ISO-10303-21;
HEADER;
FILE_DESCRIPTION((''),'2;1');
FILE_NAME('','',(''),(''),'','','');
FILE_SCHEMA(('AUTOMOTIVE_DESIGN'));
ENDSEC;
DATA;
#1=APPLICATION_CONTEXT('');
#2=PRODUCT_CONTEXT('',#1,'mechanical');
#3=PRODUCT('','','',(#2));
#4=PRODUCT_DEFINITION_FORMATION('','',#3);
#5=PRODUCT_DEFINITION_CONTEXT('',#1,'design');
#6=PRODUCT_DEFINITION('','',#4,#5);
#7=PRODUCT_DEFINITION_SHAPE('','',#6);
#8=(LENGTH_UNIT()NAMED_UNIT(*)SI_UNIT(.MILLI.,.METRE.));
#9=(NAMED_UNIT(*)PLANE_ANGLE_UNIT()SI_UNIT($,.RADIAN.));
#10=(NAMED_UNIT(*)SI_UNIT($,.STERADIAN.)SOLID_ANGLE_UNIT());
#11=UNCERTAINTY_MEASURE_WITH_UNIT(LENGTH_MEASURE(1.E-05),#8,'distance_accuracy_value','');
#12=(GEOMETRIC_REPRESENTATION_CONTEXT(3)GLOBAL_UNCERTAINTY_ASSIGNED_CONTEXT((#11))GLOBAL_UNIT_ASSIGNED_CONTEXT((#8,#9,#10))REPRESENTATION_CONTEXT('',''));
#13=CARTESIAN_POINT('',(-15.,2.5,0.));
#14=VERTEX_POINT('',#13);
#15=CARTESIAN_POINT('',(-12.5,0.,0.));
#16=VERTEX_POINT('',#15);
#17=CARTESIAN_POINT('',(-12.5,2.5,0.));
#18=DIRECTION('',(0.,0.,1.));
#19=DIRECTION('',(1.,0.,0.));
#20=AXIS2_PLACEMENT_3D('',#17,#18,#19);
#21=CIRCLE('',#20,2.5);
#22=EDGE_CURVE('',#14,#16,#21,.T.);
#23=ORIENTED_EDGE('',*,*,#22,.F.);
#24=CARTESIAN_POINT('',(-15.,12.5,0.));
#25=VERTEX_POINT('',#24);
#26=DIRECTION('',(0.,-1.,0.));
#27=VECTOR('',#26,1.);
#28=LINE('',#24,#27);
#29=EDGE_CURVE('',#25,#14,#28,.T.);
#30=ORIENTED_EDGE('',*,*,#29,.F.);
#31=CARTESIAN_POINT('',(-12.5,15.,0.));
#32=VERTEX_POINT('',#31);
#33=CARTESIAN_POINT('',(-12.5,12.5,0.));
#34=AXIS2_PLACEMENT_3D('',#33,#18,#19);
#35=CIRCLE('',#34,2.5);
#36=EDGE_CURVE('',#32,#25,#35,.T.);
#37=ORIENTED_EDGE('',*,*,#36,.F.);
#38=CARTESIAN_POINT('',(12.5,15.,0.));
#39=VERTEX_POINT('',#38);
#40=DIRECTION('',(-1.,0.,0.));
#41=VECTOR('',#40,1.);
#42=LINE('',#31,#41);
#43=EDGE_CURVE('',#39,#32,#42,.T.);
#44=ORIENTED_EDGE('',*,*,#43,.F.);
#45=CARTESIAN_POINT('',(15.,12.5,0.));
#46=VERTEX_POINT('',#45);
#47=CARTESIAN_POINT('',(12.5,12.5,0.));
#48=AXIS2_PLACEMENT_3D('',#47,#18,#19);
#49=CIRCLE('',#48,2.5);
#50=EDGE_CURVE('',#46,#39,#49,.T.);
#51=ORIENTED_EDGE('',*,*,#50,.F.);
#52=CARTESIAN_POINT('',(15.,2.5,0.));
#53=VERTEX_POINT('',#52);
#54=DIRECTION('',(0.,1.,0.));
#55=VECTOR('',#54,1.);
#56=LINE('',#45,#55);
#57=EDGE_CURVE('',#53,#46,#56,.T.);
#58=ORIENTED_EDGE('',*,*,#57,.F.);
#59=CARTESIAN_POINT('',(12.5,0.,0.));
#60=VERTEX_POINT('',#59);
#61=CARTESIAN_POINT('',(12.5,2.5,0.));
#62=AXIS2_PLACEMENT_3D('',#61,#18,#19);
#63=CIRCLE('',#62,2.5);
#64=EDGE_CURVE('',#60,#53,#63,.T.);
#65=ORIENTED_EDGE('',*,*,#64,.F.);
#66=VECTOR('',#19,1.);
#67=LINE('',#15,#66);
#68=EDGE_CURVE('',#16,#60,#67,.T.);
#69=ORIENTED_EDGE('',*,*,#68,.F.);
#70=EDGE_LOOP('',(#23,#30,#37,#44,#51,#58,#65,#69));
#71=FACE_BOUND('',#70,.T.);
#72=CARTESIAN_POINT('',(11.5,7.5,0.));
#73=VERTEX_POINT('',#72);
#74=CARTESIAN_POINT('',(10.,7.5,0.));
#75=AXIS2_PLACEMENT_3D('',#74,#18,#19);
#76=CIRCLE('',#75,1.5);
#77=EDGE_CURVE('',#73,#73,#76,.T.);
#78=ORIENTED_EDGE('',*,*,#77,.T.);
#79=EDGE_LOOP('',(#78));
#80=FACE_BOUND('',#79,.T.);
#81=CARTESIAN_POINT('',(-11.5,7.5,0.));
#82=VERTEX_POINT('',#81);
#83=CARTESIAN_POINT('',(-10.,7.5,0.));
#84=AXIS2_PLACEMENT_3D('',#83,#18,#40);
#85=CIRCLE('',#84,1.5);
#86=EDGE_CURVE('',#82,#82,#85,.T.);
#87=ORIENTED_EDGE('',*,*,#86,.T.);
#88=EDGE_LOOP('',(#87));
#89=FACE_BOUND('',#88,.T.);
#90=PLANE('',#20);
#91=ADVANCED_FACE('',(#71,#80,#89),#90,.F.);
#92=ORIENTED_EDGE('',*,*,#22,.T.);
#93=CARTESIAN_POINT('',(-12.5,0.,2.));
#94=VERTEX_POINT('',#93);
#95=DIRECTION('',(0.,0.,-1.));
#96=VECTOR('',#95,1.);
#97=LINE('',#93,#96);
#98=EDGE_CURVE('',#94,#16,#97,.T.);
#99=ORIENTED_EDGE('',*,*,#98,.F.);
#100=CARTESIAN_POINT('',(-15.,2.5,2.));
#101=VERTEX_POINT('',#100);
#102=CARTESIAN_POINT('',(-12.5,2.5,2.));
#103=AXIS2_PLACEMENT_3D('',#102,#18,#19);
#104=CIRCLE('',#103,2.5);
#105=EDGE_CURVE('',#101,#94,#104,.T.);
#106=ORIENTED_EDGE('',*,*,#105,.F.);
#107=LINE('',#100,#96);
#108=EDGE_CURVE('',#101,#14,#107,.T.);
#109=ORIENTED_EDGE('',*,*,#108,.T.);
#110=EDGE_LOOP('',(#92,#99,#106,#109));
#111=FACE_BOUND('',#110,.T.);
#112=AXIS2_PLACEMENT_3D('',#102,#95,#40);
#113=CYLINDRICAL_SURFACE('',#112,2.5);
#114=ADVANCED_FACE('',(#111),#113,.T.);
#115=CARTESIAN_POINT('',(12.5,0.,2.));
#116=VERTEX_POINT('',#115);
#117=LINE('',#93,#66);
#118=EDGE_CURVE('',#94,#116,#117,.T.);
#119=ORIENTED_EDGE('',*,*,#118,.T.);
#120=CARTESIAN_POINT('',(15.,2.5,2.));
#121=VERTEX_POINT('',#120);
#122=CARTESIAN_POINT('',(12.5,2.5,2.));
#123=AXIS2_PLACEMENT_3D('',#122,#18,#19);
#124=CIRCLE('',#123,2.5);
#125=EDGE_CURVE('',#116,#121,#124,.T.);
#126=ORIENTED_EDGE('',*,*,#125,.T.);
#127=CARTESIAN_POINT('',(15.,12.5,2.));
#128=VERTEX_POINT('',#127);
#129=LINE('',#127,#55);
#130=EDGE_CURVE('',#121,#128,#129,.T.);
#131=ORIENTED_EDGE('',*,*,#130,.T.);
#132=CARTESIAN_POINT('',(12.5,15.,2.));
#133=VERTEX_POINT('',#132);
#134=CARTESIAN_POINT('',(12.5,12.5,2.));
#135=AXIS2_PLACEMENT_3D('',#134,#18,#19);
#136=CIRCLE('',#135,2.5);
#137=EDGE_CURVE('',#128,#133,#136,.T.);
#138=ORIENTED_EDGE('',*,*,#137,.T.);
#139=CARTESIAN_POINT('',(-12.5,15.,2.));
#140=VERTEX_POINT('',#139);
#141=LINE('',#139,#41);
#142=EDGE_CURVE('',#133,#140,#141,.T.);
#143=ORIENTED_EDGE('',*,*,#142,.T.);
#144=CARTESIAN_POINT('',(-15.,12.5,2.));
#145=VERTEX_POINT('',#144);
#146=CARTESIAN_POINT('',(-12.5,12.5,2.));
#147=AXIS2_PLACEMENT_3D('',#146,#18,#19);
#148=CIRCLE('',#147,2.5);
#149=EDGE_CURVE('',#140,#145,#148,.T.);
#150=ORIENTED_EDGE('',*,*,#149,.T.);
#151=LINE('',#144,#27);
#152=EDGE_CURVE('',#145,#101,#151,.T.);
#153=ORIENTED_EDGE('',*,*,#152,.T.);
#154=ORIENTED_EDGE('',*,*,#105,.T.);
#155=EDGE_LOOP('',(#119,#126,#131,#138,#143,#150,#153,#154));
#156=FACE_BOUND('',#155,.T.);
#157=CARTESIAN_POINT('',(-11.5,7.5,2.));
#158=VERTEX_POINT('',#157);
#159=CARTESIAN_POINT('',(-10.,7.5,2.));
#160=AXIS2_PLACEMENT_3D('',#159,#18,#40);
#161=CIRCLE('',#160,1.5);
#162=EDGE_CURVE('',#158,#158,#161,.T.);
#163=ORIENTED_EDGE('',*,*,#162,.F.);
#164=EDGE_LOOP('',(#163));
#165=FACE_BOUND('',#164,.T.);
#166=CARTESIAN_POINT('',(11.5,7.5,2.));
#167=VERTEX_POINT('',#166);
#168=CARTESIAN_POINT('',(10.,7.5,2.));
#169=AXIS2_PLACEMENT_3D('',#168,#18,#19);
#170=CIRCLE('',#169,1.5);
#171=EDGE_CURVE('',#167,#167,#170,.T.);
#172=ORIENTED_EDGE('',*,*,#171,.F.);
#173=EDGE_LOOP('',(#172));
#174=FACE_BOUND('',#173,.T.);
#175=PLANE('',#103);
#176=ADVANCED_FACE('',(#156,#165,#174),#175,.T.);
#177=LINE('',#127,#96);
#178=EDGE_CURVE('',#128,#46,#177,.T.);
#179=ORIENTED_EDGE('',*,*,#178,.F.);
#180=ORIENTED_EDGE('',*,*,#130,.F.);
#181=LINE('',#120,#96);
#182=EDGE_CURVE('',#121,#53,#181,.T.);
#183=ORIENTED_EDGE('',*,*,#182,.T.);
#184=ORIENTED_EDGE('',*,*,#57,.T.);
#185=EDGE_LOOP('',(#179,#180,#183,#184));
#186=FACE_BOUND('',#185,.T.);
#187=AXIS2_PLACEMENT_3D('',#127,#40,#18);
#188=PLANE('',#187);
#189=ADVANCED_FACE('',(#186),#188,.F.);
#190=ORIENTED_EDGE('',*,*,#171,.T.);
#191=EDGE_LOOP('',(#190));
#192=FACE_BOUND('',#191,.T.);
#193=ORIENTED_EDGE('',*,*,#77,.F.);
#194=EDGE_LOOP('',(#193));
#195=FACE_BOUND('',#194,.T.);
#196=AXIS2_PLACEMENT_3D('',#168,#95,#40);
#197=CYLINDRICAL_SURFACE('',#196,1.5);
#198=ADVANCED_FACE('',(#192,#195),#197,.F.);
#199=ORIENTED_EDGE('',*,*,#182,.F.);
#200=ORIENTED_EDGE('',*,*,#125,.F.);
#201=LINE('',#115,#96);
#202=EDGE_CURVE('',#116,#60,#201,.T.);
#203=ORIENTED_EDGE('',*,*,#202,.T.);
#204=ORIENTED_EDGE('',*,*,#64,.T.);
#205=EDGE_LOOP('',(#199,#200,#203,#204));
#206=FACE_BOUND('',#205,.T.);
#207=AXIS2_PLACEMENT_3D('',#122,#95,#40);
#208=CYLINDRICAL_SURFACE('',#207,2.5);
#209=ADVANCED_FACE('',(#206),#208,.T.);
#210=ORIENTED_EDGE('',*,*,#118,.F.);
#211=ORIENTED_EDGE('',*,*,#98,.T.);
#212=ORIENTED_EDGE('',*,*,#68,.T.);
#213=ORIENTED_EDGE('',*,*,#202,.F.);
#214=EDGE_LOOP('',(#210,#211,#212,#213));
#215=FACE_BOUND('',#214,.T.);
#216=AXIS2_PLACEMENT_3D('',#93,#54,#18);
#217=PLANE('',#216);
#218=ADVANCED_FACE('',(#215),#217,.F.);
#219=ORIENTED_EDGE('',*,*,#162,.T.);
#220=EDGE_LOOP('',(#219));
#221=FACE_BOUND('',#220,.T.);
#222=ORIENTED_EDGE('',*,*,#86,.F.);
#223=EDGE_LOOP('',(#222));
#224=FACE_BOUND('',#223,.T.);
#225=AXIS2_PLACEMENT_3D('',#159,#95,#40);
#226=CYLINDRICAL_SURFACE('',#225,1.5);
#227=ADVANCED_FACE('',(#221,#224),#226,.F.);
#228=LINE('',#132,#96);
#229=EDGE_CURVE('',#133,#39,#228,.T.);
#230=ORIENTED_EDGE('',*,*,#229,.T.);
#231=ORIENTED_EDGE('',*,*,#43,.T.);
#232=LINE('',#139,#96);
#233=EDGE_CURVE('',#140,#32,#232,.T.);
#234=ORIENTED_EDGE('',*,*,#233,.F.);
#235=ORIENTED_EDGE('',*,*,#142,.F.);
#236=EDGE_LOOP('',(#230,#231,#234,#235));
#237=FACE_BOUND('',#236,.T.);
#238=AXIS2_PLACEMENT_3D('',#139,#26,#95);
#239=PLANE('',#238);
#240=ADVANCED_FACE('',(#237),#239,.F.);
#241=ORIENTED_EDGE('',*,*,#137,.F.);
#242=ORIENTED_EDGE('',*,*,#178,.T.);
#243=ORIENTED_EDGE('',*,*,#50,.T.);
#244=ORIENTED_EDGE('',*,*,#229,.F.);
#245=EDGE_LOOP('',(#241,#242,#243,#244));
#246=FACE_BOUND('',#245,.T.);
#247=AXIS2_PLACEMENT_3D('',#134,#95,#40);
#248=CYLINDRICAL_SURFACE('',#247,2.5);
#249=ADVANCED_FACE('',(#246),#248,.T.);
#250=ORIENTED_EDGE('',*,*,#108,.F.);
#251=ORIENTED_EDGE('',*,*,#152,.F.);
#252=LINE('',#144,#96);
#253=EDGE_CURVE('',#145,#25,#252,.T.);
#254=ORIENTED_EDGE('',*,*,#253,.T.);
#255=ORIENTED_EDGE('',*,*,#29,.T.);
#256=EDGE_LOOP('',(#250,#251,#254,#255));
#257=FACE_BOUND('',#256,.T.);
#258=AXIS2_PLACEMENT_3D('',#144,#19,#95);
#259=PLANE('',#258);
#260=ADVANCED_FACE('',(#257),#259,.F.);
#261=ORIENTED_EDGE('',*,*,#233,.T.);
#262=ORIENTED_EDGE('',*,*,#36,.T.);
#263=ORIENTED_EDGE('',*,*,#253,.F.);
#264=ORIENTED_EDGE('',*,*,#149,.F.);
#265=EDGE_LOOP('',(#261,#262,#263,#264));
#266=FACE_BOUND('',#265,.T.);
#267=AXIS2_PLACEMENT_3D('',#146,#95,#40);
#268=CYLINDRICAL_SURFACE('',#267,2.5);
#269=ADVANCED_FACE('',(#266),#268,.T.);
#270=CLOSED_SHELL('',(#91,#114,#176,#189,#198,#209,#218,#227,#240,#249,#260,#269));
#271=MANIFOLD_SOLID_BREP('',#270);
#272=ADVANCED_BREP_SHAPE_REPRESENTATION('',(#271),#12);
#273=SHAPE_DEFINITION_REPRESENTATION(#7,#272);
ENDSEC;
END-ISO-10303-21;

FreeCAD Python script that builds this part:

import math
import FreeCAD as App
import Part
import Sketcher

doc = App.newDocument("Part")
body = doc.addObject("PartDesign::Body", "Body")

# Sketch on XY plane
sketch1 = doc.addObject("Sketcher::SketchObject", "Sketch")
body.addObject(sketch1)
sketch1.AttachmentSupport = (doc.XY_Plane, [""])
sketch1.MapMode = "FlatFace"
sketch1.addGeometry([
    Part.LineSegment(App.Vector(12.5, 15, 0), App.Vector(-12.5, 15, 0)),  # 0
    Part.ArcOfCircle(Part.Circle(App.Vector(-12.5, 12.5, 0), App.Vector(0, 0, 1), 2.5), math.radians(90), math.radians(180)),  # 1
    Part.LineSegment(App.Vector(-15, 12.5, 0), App.Vector(-15, 2.5, 0)),  # 2
    Part.ArcOfCircle(Part.Circle(App.Vector(-12.5, 2.5, 0), App.Vector(0, 0, 1), 2.5), math.radians(180), math.radians(270)),  # 3
    Part.LineSegment(App.Vector(-12.5, 0, 0), App.Vector(12.5, 0, 0)),  # 4
    Part.ArcOfCircle(Part.Circle(App.Vector(12.5, 2.5, 0), App.Vector(0, 0, 1), 2.5), math.radians(-90), math.radians(0)),  # 5
    Part.LineSegment(App.Vector(15, 2.5, 0), App.Vector(15, 12.5, 0)),  # 6
    Part.ArcOfCircle(Part.Circle(App.Vector(12.5, 12.5, 0), App.Vector(0, 0, 1), 2.5), math.radians(0), math.radians(90)),  # 7
    Part.Circle(App.Vector(10, 7.5, 0), App.Vector(0, 0, 1), 1.5),  # 8
    Part.Circle(App.Vector(-10, 7.5, 0), App.Vector(0, 0, 1), 1.5),  # 9
], False)
sketch1.addConstraint([
    Sketcher.Constraint("Tangent", 0, 2, 1, 1),
    Sketcher.Constraint("Tangent", 1, 2, 2, 1),
    Sketcher.Constraint("Tangent", 2, 2, 3, 1),
    Sketcher.Constraint("Tangent", 3, 2, 4, 1),
    Sketcher.Constraint("Tangent", 4, 2, 5, 1),
    Sketcher.Constraint("Tangent", 5, 2, 6, 1),
    Sketcher.Constraint("Tangent", 6, 2, 7, 1),
    Sketcher.Constraint("Tangent", 7, 2, 0, 1),
    Sketcher.Constraint("Horizontal", 0),
    Sketcher.Constraint("Vertical", 2),
    Sketcher.Constraint("Horizontal", 4),
    Sketcher.Constraint("Vertical", 6),
    Sketcher.Constraint("Equal", 1, 3),
    Sketcher.Constraint("Equal", 3, 5),
    Sketcher.Constraint("Equal", 5, 7),
    Sketcher.Constraint("Equal", 8, 9),
    Sketcher.Constraint("Symmetric", 3, 2, 4, 2, -1, 1),
    Sketcher.Constraint("Symmetric", 8, 3, 9, 3, -2),
    Sketcher.Constraint("Diameter", 8, 3.0),
    Sketcher.Constraint("Radius", 1, 2.5),
    Sketcher.Constraint("DistanceX", 0, 2, 0, 1, 25.0),
    Sketcher.Constraint("DistanceY", 2, 2, 2, 1, 10.0),
    Sketcher.Constraint("DistanceX", -1, 1, 8, 3, 10.0),
    Sketcher.Constraint("DistanceY", 5, 3, 8, 3, 5.0),
])
pad1 = doc.addObject("PartDesign::Pad", "Pad")
body.addObject(pad1)
pad1.Profile = sketch1
pad1.Length = 2

doc.recompute()
